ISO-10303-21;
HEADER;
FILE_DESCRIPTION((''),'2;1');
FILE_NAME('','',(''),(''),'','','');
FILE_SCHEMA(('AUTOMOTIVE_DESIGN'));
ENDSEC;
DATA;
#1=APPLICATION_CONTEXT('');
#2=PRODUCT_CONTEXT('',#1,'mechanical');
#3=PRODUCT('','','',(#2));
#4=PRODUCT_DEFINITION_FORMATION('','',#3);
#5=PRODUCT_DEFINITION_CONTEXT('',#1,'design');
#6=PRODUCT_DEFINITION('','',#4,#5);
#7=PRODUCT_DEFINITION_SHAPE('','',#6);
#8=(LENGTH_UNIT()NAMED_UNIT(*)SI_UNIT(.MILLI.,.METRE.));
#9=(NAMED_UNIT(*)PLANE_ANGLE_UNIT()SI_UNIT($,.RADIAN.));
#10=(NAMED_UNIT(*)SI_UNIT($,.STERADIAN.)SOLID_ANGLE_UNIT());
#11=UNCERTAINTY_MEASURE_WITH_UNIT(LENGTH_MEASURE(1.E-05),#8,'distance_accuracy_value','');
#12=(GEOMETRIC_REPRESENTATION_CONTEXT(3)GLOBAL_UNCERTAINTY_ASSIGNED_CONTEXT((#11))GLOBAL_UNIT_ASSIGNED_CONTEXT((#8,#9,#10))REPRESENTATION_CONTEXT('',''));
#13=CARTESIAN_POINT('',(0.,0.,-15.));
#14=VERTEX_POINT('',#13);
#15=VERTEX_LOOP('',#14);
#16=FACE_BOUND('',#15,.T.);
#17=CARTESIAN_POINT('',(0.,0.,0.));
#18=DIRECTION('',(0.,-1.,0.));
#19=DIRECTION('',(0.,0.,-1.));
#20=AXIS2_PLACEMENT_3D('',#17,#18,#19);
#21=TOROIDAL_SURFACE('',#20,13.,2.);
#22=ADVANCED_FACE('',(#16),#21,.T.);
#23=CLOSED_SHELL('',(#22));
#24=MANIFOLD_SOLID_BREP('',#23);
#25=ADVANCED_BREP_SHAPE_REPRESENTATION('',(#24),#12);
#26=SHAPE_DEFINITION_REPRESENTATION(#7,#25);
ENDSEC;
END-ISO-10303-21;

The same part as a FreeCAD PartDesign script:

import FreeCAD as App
import Part
import Sketcher

V = App.Vector
Q = App.Units.Quantity

doc = App.newDocument("Part")
body = doc.addObject("PartDesign::Body", "Body")

# Sketch on YZ plane
sketch1 = body.newObject("Sketcher::SketchObject", "Sketch")
sketch1.AttachmentSupport = (doc.getObject("YZ_Plane"), [""])
sketch1.MapMode = "FlatFace"
sketch1.addGeometry(Part.Circle(V(0, 13, 0), V(0, 0, 1), 2), False)
sketch1.addConstraint(Sketcher.Constraint("PointOnObject", 0, 3, -2))
sketch1.addConstraint(Sketcher.Constraint("Diameter", 0, Q("4 mm")))
sketch1.addConstraint(Sketcher.Constraint("DistanceY", -1, 1, 0, 3, Q("13 mm")))
revolution = body.newObject("PartDesign::Revolution", "Revolution")
revolution.Profile = sketch1
revolution.ReferenceAxis = (sketch1, ["H_Axis"])
revolution.Angle = 360

doc.recompute()
